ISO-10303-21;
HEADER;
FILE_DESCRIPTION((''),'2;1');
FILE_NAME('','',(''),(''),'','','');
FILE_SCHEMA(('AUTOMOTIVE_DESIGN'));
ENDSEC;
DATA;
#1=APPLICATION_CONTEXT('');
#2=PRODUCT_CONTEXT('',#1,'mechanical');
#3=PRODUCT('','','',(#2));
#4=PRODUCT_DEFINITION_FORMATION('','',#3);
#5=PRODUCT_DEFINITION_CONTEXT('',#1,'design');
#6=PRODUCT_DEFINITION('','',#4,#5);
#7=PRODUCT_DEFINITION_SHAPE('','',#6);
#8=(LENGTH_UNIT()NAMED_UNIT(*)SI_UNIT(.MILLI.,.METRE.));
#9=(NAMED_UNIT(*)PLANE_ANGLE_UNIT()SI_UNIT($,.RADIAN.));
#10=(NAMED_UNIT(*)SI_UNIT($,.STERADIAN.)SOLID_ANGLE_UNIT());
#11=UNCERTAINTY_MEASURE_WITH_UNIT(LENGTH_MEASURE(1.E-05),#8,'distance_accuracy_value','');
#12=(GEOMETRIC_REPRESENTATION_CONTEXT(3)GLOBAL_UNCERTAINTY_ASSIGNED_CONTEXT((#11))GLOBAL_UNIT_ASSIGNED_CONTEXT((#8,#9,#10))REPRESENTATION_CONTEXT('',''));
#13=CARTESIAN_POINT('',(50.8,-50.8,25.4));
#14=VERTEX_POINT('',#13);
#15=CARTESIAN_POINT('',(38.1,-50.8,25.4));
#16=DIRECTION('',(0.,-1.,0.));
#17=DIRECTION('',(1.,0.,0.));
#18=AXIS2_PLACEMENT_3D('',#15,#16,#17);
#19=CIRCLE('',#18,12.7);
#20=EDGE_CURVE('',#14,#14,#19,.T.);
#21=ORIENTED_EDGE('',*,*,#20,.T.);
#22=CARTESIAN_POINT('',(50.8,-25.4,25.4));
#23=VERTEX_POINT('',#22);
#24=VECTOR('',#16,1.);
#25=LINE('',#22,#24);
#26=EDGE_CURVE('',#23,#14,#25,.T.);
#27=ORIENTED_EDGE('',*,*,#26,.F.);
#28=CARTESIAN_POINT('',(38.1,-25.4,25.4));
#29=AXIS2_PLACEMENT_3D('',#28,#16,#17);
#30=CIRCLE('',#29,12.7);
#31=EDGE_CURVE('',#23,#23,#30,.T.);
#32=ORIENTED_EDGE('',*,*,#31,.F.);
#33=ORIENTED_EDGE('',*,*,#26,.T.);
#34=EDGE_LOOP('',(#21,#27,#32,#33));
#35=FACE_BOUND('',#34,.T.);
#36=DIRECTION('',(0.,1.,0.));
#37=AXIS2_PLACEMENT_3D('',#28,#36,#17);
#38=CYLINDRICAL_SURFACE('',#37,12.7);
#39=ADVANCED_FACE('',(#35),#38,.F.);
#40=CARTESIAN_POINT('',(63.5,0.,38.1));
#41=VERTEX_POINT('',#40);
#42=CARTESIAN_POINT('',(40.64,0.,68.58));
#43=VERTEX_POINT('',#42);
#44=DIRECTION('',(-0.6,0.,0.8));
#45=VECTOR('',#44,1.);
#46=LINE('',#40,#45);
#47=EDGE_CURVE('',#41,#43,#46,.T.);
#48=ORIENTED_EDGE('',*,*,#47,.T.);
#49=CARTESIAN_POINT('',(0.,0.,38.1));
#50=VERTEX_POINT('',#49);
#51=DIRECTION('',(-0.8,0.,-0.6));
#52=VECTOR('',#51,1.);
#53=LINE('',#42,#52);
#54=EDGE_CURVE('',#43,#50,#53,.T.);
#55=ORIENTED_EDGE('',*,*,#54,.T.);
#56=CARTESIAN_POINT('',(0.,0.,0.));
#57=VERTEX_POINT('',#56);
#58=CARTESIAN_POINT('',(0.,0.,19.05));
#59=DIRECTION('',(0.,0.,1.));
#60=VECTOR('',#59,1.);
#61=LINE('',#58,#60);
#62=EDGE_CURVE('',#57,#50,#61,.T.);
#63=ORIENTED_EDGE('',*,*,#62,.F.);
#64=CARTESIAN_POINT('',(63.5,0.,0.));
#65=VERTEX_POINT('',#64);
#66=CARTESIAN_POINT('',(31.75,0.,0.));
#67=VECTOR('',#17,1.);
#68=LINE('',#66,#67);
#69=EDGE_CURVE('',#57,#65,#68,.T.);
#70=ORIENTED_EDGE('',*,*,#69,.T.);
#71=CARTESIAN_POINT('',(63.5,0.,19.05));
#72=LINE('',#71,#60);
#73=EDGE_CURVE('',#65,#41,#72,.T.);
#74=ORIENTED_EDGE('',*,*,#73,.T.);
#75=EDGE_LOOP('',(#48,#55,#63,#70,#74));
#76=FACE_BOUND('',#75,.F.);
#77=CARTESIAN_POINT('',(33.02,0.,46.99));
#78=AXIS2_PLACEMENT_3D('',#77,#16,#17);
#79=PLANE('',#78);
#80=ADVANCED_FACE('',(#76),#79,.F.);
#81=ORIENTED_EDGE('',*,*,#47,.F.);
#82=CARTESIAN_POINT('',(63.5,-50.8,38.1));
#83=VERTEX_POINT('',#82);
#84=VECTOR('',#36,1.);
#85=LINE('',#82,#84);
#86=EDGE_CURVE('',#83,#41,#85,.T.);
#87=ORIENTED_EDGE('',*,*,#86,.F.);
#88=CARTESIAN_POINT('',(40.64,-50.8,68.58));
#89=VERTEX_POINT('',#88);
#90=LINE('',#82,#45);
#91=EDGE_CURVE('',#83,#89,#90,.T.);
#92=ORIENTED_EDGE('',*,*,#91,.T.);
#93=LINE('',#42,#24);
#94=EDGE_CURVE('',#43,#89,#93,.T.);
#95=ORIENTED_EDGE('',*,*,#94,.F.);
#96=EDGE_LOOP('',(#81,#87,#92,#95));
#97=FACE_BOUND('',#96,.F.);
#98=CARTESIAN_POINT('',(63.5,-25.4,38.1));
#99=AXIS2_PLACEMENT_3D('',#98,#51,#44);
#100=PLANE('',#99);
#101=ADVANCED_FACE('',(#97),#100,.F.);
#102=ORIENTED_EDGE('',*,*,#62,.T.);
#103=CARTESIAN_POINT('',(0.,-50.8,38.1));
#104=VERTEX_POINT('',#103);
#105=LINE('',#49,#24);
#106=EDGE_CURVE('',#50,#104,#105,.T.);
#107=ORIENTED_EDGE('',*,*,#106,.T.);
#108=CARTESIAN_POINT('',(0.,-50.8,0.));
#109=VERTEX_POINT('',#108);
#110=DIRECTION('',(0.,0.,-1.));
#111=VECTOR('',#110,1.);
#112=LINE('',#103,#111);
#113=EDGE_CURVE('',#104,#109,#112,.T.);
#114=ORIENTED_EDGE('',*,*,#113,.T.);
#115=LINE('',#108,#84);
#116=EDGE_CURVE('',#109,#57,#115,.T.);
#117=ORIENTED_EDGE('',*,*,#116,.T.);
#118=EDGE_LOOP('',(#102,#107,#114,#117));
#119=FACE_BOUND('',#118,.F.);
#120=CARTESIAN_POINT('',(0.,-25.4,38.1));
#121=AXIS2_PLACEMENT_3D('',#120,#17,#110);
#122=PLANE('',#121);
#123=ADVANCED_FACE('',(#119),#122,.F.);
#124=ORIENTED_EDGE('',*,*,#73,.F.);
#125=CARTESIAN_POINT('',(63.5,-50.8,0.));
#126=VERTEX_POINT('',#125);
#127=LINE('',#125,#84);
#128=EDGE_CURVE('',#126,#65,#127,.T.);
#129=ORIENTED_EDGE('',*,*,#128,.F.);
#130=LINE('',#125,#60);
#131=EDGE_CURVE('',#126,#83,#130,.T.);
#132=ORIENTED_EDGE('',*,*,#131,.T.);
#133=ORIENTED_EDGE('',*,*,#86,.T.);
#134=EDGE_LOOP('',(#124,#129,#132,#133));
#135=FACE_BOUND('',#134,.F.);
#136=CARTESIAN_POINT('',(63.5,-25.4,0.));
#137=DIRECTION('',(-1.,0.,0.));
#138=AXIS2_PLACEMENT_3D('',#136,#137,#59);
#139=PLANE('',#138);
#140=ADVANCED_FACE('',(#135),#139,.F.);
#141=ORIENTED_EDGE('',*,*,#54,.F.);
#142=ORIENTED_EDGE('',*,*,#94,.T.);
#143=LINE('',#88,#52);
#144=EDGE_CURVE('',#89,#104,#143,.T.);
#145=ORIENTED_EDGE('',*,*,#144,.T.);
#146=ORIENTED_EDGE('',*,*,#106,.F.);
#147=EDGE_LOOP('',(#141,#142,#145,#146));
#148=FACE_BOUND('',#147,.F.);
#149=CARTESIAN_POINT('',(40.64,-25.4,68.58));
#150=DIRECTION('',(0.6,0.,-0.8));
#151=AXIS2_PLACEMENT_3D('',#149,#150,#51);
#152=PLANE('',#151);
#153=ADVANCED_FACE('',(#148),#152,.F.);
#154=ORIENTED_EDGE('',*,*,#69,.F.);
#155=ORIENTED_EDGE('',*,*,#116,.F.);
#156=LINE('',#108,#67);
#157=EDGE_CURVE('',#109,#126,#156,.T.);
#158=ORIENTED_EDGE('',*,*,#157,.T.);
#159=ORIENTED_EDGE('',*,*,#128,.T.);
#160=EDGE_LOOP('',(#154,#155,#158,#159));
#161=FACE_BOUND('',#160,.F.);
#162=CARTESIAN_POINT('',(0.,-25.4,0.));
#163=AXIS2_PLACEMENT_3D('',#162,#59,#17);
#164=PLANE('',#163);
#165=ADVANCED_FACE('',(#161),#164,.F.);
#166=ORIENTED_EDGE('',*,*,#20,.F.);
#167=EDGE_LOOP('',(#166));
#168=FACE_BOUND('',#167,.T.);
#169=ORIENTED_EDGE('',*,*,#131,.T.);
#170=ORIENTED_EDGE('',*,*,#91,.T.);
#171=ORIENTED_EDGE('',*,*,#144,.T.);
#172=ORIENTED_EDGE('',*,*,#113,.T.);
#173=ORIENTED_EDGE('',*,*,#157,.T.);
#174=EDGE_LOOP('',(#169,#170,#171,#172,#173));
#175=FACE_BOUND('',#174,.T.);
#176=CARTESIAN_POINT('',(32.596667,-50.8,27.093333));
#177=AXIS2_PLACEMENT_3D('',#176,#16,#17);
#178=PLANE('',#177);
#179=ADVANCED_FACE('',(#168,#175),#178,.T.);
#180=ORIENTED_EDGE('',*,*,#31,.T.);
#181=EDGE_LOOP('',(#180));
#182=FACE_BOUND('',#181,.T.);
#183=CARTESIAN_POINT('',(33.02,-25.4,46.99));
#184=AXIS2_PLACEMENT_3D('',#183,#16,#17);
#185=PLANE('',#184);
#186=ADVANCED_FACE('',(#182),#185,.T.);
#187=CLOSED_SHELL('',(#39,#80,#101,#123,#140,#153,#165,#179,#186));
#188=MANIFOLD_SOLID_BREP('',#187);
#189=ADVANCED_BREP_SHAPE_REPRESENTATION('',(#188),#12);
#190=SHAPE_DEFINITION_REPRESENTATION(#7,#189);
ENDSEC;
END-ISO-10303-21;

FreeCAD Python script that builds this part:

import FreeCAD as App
import Part
import Sketcher
Q = App.Units.Quantity

doc = App.newDocument("Part")
params = doc.addObject("Spreadsheet::Sheet", "Params")
for row, (alias, value) in enumerate([
    ("sketch1_length", "2 in"),
    ("sketch1_width", "2.5 in"),
    ("sketch1_height", "1.5 in"),
    ("pad1_length", "1 in"),
    ("sketch2_diameter", "1 in"),
    ("sketch2_length", "2 in"),
    ("sketch2_width", "2.5 in"),
    ("sketch2_height", "1.5 in"),
    ("pad2_length", "1 in"),
], start=1):
    params.set(f"A{row}", alias)
    params.set(f"B{row}", "=" + value)
    params.setAlias(f"B{row}", alias)

body = doc.addObject("PartDesign::Body", "Body")

# Sketch on XZ plane
sketch1 = body.newObject("Sketcher::SketchObject", "Sketch")
sketch1.AttachmentSupport = (doc.getObject("XZ_Plane"), [""])
sketch1.MapMode = "FlatFace"
sketch1.addGeometry([
    Part.LineSegment(App.Vector(41, 69, 0), App.Vector(0, 38, 0)),  # 0
    Part.LineSegment(App.Vector(0, 38, 0), App.Vector(0, 0, 0)),  # 1
    Part.LineSegment(App.Vector(0, 0, 0), App.Vector(64, 0, 0)),  # 2
    Part.LineSegment(App.Vector(64, 0, 0), App.Vector(64, 38, 0)),  # 3
    Part.LineSegment(App.Vector(64, 38, 0), App.Vector(41, 69, 0)),  # 4
], False)
sketch1.addConstraint([
    Sketcher.Constraint("Coincident", 0, 2, 1, 1),
    Sketcher.Constraint("Coincident", 1, 2, 2, 1),
    Sketcher.Constraint("Coincident", 2, 2, 3, 1),
    Sketcher.Constraint("Coincident", 3, 2, 4, 1),
    Sketcher.Constraint("Coincident", 4, 2, 0, 1),
    Sketcher.Constraint("Vertical", 1),
    Sketcher.Constraint("Horizontal", 2),
    Sketcher.Constraint("Vertical", 3),
    Sketcher.Constraint("Coincident", 1, 2, -1, 1),
    Sketcher.Constraint("Perpendicular", 0, 4),
    Sketcher.Constraint("Horizontal", 0, 2, 3, 2),
    Sketcher.Constraint("Distance", 0, Q("2 in")),
    Sketcher.Constraint("DistanceX", 2, 1, 2, 2, Q("2.5 in")),
    Sketcher.Constraint("DistanceY", 1, 2, 1, 1, Q("1.5 in")),
])
sketch1.setExpression("Constraints[11]", "Params.sketch1_length")
sketch1.setExpression("Constraints[12]", "Params.sketch1_width")
sketch1.setExpression("Constraints[13]", "Params.sketch1_height")
pad1 = body.newObject("PartDesign::Pad", "Pad")
pad1.Profile = sketch1
pad1.setExpression("Length", "Params.pad1_length")

# Sketch on XZ plane
sketch2 = body.newObject("Sketcher::SketchObject", "Sketch001")
sketch2.AttachmentSupport = (doc.getObject("XZ_Plane"), [""])
sketch2.MapMode = "FlatFace"
sketch2.AttachmentOffset = App.Placement(App.Vector(0, 0, 1 * 25.4), App.Rotation())
sketch2.addGeometry([
    Part.LineSegment(App.Vector(64, 38, 0), App.Vector(41, 69, 0)),  # 0
    Part.LineSegment(App.Vector(41, 69, 0), App.Vector(0, 38, 0)),  # 1
    Part.LineSegment(App.Vector(0, 38, 0), App.Vector(0, 0, 0)),  # 2
    Part.LineSegment(App.Vector(0, 0, 0), App.Vector(64, 0, 0)),  # 3
    Part.LineSegment(App.Vector(64, 0, 0), App.Vector(64, 38, 0)),  # 4
    Part.Circle(App.Vector(38, 25, 0), App.Vector(0, 0, 1), 13),  # 5
], False)
sketch2.addConstraint([
    Sketcher.Constraint("Coincident", 0, 2, 1, 1),
    Sketcher.Constraint("Coincident", 1, 2, 2, 1),
    Sketcher.Constraint("Coincident", 2, 2, 3, 1),
    Sketcher.Constraint("Coincident", 3, 2, 4, 1),
    Sketcher.Constraint("Coincident", 4, 2, 0, 1),
    Sketcher.Constraint("Vertical", 2),
    Sketcher.Constraint("Horizontal", 3),
    Sketcher.Constraint("Vertical", 4),
    Sketcher.Constraint("Coincident", 2, 2, -1, 1),
    Sketcher.Constraint("Perpendicular", 0, 1),
    Sketcher.Constraint("Horizontal", 1, 2, 4, 2),
    Sketcher.Constraint("Diameter", 5, Q("1 in")),
    Sketcher.Constraint("Distance", 1, Q("2 in")),
    Sketcher.Constraint("DistanceX", 3, 1, 3, 2, Q("2.5 in")),
    Sketcher.Constraint("DistanceY", 2, 2, 2, 1, Q("1.5 in")),
    Sketcher.Constraint("DistanceY", -1, 1, 5, 3, Q("1 in")),
    Sketcher.Constraint("DistanceX", 5, 3, 3, 2, Q("1 in")),
])
sketch2.setExpression("Constraints[11]", "Params.sketch2_diameter")
sketch2.setExpression("Constraints[12]", "Params.sketch2_length")
sketch2.setExpression("Constraints[13]", "Params.sketch2_width")
sketch2.setExpression("Constraints[14]", "Params.sketch2_height")
pad2 = body.newObject("PartDesign::Pad", "Pad001")
pad2.Profile = sketch2
pad2.setExpression("Length", "Params.pad2_length")

doc.recompute()
